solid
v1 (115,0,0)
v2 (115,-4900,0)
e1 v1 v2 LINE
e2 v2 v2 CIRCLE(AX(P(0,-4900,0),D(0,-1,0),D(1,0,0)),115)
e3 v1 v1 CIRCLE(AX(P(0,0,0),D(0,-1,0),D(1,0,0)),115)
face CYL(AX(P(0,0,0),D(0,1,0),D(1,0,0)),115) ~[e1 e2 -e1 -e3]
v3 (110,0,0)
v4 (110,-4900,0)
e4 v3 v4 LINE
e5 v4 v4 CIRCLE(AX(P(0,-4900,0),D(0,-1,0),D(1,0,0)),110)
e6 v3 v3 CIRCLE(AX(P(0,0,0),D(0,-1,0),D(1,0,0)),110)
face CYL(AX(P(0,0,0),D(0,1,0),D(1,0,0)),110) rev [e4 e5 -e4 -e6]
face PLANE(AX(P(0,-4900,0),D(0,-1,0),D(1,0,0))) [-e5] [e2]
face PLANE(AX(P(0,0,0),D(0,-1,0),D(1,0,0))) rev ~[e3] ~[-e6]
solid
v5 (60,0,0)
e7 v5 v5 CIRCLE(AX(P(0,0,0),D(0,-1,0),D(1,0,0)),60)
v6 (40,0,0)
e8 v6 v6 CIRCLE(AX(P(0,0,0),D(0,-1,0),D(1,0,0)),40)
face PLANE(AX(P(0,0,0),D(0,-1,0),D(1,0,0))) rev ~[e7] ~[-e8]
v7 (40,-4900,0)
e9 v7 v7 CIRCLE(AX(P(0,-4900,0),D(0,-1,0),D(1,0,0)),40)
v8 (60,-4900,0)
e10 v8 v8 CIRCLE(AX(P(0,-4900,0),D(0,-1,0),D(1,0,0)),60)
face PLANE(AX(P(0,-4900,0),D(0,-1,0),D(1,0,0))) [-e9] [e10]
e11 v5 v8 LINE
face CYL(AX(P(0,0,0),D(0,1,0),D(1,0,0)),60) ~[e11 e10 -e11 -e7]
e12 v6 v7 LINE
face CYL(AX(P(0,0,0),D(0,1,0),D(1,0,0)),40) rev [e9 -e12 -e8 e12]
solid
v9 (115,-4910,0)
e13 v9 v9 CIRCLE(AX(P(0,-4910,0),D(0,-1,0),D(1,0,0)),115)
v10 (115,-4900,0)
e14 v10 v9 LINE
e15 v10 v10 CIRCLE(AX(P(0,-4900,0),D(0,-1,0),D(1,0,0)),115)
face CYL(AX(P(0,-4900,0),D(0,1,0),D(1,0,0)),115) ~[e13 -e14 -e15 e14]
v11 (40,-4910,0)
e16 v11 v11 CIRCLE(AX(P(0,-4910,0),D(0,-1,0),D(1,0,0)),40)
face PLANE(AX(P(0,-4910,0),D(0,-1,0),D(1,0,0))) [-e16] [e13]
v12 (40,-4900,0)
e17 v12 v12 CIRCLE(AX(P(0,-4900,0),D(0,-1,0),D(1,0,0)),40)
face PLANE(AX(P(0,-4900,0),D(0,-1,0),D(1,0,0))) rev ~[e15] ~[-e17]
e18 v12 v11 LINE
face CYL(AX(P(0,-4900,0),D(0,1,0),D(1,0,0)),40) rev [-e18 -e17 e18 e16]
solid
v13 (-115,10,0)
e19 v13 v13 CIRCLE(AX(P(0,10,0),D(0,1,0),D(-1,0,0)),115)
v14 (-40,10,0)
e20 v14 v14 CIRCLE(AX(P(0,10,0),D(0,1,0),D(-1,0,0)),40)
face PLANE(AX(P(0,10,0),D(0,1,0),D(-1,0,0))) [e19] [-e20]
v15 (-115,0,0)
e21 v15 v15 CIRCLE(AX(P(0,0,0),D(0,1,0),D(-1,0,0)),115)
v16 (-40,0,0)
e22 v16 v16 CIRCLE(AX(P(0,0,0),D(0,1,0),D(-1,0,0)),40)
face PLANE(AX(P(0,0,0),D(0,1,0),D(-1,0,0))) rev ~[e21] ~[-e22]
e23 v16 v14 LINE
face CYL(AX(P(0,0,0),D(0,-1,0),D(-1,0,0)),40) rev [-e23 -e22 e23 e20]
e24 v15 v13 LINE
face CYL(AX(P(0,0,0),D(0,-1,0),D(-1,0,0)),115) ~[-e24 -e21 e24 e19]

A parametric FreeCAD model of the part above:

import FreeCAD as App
import Part
import Sketcher
from FreeCAD import Vector

doc = App.newDocument("Part")
body = doc.addObject("PartDesign::Body", "Body")

# Sketch on XZ plane
sketch1 = doc.addObject("Sketcher::SketchObject", "Sketch")
body.addObject(sketch1)
sketch1.AttachmentSupport = (doc.XZ_Plane, [""])
sketch1.MapMode = "FlatFace"
sketch1.addGeometry(Part.Circle(Vector(0, 0, 0), Vector(0, 0, 1), 60), False)
sketch1.addGeometry(Part.Circle(Vector(0, 0, 0), Vector(0, 0, 1), 40), False)
sketch1.addConstraint(Sketcher.Constraint("Coincident", 0, 3, -1, 1))
sketch1.addConstraint(Sketcher.Constraint("Coincident", 1, 3, -1, 1))
sketch1.addConstraint(Sketcher.Constraint("Diameter", 0, 120.0))
sketch1.addConstraint(Sketcher.Constraint("Diameter", 1, 80.0))
pad1 = doc.addObject("PartDesign::Pad", "Pad")
body.addObject(pad1)
pad1.Profile = sketch1
pad1.Length = 4900
body2 = doc.addObject("PartDesign::Body", "Body001")

# Sketch on XZ plane
sketch2 = doc.addObject("Sketcher::SketchObject", "Sketch001")
body2.addObject(sketch2)
sketch2.AttachmentSupport = (doc.getObject("XZ_Plane001"), [""])
sketch2.MapMode = "FlatFace"
sketch2.addGeometry(Part.Circle(Vector(0, 0, 0), Vector(0, 0, 1), 115), False)
sketch2.addGeometry(Part.Circle(Vector(0, 0, 0), Vector(0, 0, 1), 110), False)
sketch2.addConstraint(Sketcher.Constraint("Coincident", 0, 3, -1, 1))
sketch2.addConstraint(Sketcher.Constraint("Coincident", 1, 3, -1, 1))
sketch2.addConstraint(Sketcher.Constraint("Diameter", 0, 230.0))
sketch2.addConstraint(Sketcher.Constraint("Diameter", 1, 220.0))
pad2 = doc.addObject("PartDesign::Pad", "Pad001")
body2.addObject(pad2)
pad2.Profile = sketch2
pad2.Length = 4900
body3 = doc.addObject("PartDesign::Body", "Body002")

# Sketch on XZ plane
sketch3 = doc.addObject("Sketcher::SketchObject", "Sketch002")
body3.addObject(sketch3)
sketch3.AttachmentSupport = (doc.getObject("XZ_Plane002"), [""])
sketch3.MapMode = "FlatFace"
sketch3.AttachmentOffset = App.Placement(Vector(0, 0, 4900), App.Rotation())
sketch3.addGeometry(Part.Circle(Vector(0, 0, 0), Vector(0, 0, 1), 115), False)
sketch3.addGeometry(Part.Circle(Vector(0, 0, 0), Vector(0, 0, 1), 40), False)
sketch3.addConstraint(Sketcher.Constraint("Coincident", 0, 3, -1, 1))
sketch3.addConstraint(Sketcher.Constraint("Coincident", 1, 3, -1, 1))
sketch3.addConstraint(Sketcher.Constraint("Diameter", 0, 230.0))
sketch3.addConstraint(Sketcher.Constraint("Diameter", 1, 80.0))
pad3 = doc.addObject("PartDesign::Pad", "Pad002")
body3.addObject(pad3)
pad3.Profile = sketch3
pad3.Length = 10
body4 = doc.addObject("PartDesign::Body", "Body003")

# Sketch on XZ plane
sketch4 = doc.addObject("Sketcher::SketchObject", "Sketch003")
body4.addObject(sketch4)
sketch4.AttachmentSupport = (doc.getObject("XZ_Plane003"), [""])
sketch4.MapMode = "FlatFace"
sketch4.addGeometry(Part.Circle(Vector(0, 0, 0), Vector(0, 0, 1), 115), False)
sketch4.addGeometry(Part.Circle(Vector(0, 0, 0), Vector(0, 0, 1), 40), False)
sketch4.addConstraint(Sketcher.Constraint("Coincident", 0, 3, -1, 1))
sketch4.addConstraint(Sketcher.Constraint("Coincident", 1, 3, -1, 1))
sketch4.addConstraint(Sketcher.Constraint("Diameter", 0, 230.0))
sketch4.addConstraint(Sketcher.Constraint("Diameter", 1, 80.0))
pad4 = doc.addObject("PartDesign::Pad", "Pad003")
body4.addObject(pad4)
pad4.Profile = sketch4
pad4.Length = 10
pad4.Reversed = True

doc.recompute()
